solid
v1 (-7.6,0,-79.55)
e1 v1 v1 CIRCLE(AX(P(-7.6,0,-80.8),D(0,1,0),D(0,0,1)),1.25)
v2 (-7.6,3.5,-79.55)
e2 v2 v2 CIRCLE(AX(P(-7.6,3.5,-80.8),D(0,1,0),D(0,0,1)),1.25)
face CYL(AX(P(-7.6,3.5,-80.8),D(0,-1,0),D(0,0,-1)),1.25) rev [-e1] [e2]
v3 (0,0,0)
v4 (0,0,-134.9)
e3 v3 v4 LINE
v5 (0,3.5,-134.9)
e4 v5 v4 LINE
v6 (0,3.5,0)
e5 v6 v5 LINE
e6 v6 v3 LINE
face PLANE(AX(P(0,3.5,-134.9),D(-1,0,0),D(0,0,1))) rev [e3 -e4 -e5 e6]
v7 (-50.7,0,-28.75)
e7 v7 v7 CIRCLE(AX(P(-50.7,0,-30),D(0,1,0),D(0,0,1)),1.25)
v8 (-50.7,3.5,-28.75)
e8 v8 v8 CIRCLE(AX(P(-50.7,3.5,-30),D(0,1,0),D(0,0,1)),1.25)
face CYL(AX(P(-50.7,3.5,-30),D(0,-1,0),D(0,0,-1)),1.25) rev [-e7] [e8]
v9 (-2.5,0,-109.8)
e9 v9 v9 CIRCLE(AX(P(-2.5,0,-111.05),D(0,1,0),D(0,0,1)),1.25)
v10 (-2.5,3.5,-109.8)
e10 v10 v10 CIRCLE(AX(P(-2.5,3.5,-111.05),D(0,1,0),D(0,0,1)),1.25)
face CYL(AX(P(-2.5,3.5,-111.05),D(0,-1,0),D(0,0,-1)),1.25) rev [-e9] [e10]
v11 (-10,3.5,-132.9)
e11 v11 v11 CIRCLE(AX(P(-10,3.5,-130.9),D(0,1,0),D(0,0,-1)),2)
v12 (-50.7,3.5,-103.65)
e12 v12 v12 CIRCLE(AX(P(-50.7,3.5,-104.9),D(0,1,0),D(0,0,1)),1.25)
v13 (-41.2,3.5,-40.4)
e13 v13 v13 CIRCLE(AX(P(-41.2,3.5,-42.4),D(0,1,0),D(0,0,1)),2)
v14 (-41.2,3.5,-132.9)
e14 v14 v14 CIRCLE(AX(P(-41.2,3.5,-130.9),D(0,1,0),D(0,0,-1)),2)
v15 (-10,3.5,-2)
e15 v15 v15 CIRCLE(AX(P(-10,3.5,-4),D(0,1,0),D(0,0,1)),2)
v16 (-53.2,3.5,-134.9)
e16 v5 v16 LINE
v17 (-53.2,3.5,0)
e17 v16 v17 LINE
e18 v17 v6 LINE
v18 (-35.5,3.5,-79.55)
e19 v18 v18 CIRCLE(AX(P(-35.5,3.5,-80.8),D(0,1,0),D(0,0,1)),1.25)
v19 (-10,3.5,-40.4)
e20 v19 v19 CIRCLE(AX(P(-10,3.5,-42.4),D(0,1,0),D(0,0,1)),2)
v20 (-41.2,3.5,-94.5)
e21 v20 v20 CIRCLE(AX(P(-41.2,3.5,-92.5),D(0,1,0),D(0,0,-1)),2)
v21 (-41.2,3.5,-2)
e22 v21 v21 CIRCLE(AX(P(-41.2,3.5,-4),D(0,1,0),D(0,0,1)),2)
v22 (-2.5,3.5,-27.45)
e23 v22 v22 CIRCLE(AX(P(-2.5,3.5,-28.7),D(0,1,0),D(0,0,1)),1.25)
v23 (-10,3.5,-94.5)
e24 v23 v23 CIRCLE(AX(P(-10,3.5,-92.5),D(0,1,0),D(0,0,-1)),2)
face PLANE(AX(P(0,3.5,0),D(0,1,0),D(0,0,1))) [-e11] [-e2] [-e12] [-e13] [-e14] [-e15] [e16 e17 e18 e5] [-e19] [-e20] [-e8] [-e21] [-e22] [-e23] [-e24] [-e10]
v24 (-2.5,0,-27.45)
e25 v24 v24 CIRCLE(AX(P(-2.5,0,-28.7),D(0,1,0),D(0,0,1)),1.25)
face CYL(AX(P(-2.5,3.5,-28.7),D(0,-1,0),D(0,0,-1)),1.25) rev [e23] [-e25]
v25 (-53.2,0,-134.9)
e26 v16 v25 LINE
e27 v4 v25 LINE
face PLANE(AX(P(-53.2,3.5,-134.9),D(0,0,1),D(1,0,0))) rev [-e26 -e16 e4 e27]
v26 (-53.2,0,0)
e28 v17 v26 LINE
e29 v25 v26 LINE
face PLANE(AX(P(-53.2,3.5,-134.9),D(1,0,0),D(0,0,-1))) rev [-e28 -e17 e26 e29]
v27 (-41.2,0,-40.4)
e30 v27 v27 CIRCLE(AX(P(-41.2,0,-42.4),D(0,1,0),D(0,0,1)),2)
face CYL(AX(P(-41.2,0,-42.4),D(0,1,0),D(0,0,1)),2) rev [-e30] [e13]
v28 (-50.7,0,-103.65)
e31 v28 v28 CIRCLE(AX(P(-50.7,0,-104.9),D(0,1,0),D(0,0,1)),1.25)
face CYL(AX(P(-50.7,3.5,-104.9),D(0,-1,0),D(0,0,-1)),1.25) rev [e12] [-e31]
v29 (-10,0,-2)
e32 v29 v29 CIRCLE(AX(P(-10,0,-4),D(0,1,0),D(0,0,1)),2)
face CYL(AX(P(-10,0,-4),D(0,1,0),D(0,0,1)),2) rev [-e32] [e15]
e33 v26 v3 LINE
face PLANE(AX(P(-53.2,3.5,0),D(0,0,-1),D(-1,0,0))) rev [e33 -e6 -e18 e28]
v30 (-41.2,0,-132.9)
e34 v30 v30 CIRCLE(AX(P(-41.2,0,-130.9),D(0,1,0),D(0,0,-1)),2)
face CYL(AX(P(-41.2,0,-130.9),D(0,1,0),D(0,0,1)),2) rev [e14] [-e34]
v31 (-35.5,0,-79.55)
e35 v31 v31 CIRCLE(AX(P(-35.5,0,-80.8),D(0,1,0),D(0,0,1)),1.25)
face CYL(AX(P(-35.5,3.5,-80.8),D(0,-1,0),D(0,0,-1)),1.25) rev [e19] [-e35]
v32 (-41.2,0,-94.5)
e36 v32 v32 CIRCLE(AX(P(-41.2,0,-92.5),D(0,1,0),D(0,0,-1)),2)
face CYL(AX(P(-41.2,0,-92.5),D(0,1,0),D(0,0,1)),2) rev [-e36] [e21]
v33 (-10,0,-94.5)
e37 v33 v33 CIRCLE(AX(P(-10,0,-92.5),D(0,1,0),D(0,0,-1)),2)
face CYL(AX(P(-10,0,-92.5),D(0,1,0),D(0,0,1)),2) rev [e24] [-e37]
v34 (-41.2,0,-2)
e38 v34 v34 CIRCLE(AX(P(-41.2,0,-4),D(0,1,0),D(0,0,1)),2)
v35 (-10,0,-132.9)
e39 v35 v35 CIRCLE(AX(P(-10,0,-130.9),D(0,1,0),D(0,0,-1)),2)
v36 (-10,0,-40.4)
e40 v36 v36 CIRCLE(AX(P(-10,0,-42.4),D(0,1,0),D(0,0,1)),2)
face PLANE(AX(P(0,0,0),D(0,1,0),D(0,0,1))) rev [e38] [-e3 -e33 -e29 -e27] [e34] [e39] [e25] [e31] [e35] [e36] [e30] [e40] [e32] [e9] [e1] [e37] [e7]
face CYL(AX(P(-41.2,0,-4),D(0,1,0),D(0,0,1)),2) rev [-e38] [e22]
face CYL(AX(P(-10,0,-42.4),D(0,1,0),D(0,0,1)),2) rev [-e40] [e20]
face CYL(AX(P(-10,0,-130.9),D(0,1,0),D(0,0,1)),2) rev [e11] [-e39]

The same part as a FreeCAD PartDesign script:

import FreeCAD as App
import Part
import Sketcher
from FreeCAD import Vector


def add_polygon(sketch, points):
    """Adds a closed chain of lines whose ends are joined by coincident constraints."""
    first, n = sketch.GeometryCount, len(points)
    for a, b in zip(points, points[1:] + points[:1]):
        sketch.addGeometry(Part.LineSegment(App.Vector(*a, 0), App.Vector(*b, 0)), False)
    for i in range(n):
        sketch.addConstraint(Sketcher.Constraint("Coincident", first + i, 2, first + (i + 1) % n, 1))

doc = App.newDocument("Part")
body = doc.addObject("PartDesign::Body", "Body")

sketch1 = body.newObject("Sketcher::SketchObject", "Sketch")
sketch1.AttachmentSupport = (doc.getObject("XZ_Plane"), [""])
sketch1.MapMode = "FlatFace"
add_polygon(sketch1, [(-53.2, -134.9), (-53.2, 0), (0, 0), (0, -134.9)])
sketch1.addGeometry(Part.Circle(Vector(-50.7, -30, 0), Vector(0, 0, 1), 1.2), False)
sketch1.addGeometry(Part.Circle(Vector(-2.5, -28.7, 0), Vector(0, 0, 1), 1.2), False)
sketch1.addGeometry(Part.Circle(Vector(-35.5, -80.8, 0), Vector(0, 0, 1), 1.2), False)
sketch1.addGeometry(Part.Circle(Vector(-50.7, -104.9, 0), Vector(0, 0, 1), 1.2), False)
sketch1.addGeometry(Part.Circle(Vector(-7.6, -80.8, 0), Vector(0, 0, 1), 1.2), False)
sketch1.addGeometry(Part.Circle(Vector(-2.5, -111, 0), Vector(0, 0, 1), 1.2), False)
sketch1.addConstraint(Sketcher.Constraint("Vertical", 0))
sketch1.addConstraint(Sketcher.Constraint("Horizontal", 1))
sketch1.addConstraint(Sketcher.Constraint("Vertical", 2))
sketch1.addConstraint(Sketcher.Constraint("Horizontal", 3))
sketch1.addConstraint(Sketcher.Constraint("Coincident", 1, 2, -1, 1))
sketch1.addConstraint(Sketcher.Constraint("Equal", 4, 5))
sketch1.addConstraint(Sketcher.Constraint("Equal", 5, 6))
sketch1.addConstraint(Sketcher.Constraint("Equal", 6, 7))
sketch1.addConstraint(Sketcher.Constraint("Equal", 7, 8))
sketch1.addConstraint(Sketcher.Constraint("Equal", 8, 9))
sketch1.addConstraint(Sketcher.Constraint("Horizontal", 6, 3, 8, 3))
sketch1.addConstraint(Sketcher.Constraint("Vertical", 4, 3, 7, 3))
sketch1.addConstraint(Sketcher.Constraint("Vertical", 5, 3, 9, 3))
sketch1.addConstraint(Sketcher.Constraint("Diameter", 4, 2.5))
sketch1.addConstraint(Sketcher.Constraint("DistanceX", 1, 1, 1, 2, 53.2))
sketch1.addConstraint(Sketcher.Constraint("DistanceY", 0, 1, 0, 2, 134.9))
sketch1.addConstraint(Sketcher.Constraint("DistanceY", 4, 3, -1, 1, 30.0))
sketch1.addConstraint(Sketcher.Constraint("DistanceX", 6, 3, 5, 3, 33.0))
sketch1.addConstraint(Sketcher.Constraint("DistanceY", 2, 2, 7, 3, 30.0))
sketch1.addConstraint(Sketcher.Constraint("DistanceX", 4, 3, -1, 1, 50.7))
sketch1.addConstraint(Sketcher.Constraint("DistanceX", 5, 3, -1, 1, 2.5))
sketch1.addConstraint(Sketcher.Constraint("DistanceY", 5, 3, -1, 1, 28.7))
sketch1.addConstraint(Sketcher.Constraint("DistanceY", 6, 3, -1, 1, 80.8))
sketch1.addConstraint(Sketcher.Constraint("DistanceX", 8, 3, -1, 1, 7.6))
sketch1.addConstraint(Sketcher.Constraint("DistanceY", 9, 3, -1, 1, 111.05))
pad1 = body.newObject("PartDesign::Pad", "Pad")
pad1.Profile = sketch1
pad1.Length = 3.5
pad1.Reversed = True

sketch2 = body.newObject("Sketcher::SketchObject", "Sketch001")
sketch2.AttachmentSupport = (doc.getObject("XZ_Plane"), [""])
sketch2.MapMode = "FlatFace"
sketch2.AttachmentOffset = App.Placement(Vector(0, 0, -3.5), App.Rotation())
sketch2.addGeometry(Part.Circle(Vector(-41.2, -4, 0), Vector(0, 0, 1), 2), False)
sketch2.addGeometry(Part.Circle(Vector(-10, -4, 0), Vector(0, 0, 1), 2), False)
sketch2.addGeometry(Part.Circle(Vector(-41.2, -42.4, 0), Vector(0, 0, 1), 2), False)
sketch2.addGeometry(Part.Circle(Vector(-10, -42.4, 0), Vector(0, 0, 1), 2), False)
sketch2.addGeometry(Part.Circle(Vector(-41.2, -130.9, 0), Vector(0, 0, 1), 2), False)
sketch2.addGeometry(Part.Circle(Vector(-10, -130.9, 0), Vector(0, 0, 1), 2), False)
sketch2.addGeometry(Part.Circle(Vector(-10, -92.5, 0), Vector(0, 0, 1), 2), False)
sketch2.addGeometry(Part.Circle(Vector(-41.2, -92.5, 0), Vector(0, 0, 1), 2), False)
sketch2.addConstraint(Sketcher.Constraint("Equal", 0, 1))
sketch2.addConstraint(Sketcher.Constraint("Equal", 1, 2))
sketch2.addConstraint(Sketcher.Constraint("Equal", 2, 3))
sketch2.addConstraint(Sketcher.Constraint("Equal", 3, 4))
sketch2.addConstraint(Sketcher.Constraint("Equal", 4, 5))
sketch2.addConstraint(Sketcher.Constraint("Equal", 5, 6))
sketch2.addConstraint(Sketcher.Constraint("Equal", 6, 7))
sketch2.addConstraint(Sketcher.Constraint("Horizontal", 0, 3, 1, 3))
sketch2.addConstraint(Sketcher.Constraint("Horizontal", 2, 3, 3, 3))
sketch2.addConstraint(Sketcher.Constraint("Horizontal", 4, 3, 5, 3))
sketch2.addConstraint(Sketcher.Constraint("Horizontal", 6, 3, 7, 3))
sketch2.addConstraint(Sketcher.Constraint("Vertical", 0, 3, 2, 3))
sketch2.addConstraint(Sketcher.Constraint("Vertical", 1, 3, 3, 3))
sketch2.addConstraint(Sketcher.Constraint("Vertical", 2, 3, 4, 3))
sketch2.addConstraint(Sketcher.Constraint("Vertical", 3, 3, 5, 3))
sketch2.addConstraint(Sketcher.Constraint("Vertical", 5, 3, 6, 3))
sketch2.addConstraint(Sketcher.Constraint("Vertical", 4, 3, 7, 3))
sketch2.addConstraint(Sketcher.Constraint("Diameter", 0, 4.0))
sketch2.addConstraint(Sketcher.Constraint("DistanceY", 0, 3, -1, 1, 4.0))
sketch2.addConstraint(Sketcher.Constraint("DistanceX", 1, 3, -1, 1, 10.0))
sketch2.addConstraint(Sketcher.Constraint("DistanceX", 0, 3, -1, 1, 41.2))
sketch2.addConstraint(Sketcher.Constraint("DistanceY", 2, 3, -1, 1, 42.4))
sketch2.addConstraint(Sketcher.Constraint("DistanceY", 4, 3, -1, 1, 130.9))
sketch2.addConstraint(Sketcher.Constraint("DistanceY", 6, 3, -1, 1, 92.5))
pocket1 = body.newObject("PartDesign::Pocket", "Pocket")
pocket1.Profile = sketch2
pocket1.Type = "ThroughAll"
pocket1.Reversed = True

doc.recompute()
